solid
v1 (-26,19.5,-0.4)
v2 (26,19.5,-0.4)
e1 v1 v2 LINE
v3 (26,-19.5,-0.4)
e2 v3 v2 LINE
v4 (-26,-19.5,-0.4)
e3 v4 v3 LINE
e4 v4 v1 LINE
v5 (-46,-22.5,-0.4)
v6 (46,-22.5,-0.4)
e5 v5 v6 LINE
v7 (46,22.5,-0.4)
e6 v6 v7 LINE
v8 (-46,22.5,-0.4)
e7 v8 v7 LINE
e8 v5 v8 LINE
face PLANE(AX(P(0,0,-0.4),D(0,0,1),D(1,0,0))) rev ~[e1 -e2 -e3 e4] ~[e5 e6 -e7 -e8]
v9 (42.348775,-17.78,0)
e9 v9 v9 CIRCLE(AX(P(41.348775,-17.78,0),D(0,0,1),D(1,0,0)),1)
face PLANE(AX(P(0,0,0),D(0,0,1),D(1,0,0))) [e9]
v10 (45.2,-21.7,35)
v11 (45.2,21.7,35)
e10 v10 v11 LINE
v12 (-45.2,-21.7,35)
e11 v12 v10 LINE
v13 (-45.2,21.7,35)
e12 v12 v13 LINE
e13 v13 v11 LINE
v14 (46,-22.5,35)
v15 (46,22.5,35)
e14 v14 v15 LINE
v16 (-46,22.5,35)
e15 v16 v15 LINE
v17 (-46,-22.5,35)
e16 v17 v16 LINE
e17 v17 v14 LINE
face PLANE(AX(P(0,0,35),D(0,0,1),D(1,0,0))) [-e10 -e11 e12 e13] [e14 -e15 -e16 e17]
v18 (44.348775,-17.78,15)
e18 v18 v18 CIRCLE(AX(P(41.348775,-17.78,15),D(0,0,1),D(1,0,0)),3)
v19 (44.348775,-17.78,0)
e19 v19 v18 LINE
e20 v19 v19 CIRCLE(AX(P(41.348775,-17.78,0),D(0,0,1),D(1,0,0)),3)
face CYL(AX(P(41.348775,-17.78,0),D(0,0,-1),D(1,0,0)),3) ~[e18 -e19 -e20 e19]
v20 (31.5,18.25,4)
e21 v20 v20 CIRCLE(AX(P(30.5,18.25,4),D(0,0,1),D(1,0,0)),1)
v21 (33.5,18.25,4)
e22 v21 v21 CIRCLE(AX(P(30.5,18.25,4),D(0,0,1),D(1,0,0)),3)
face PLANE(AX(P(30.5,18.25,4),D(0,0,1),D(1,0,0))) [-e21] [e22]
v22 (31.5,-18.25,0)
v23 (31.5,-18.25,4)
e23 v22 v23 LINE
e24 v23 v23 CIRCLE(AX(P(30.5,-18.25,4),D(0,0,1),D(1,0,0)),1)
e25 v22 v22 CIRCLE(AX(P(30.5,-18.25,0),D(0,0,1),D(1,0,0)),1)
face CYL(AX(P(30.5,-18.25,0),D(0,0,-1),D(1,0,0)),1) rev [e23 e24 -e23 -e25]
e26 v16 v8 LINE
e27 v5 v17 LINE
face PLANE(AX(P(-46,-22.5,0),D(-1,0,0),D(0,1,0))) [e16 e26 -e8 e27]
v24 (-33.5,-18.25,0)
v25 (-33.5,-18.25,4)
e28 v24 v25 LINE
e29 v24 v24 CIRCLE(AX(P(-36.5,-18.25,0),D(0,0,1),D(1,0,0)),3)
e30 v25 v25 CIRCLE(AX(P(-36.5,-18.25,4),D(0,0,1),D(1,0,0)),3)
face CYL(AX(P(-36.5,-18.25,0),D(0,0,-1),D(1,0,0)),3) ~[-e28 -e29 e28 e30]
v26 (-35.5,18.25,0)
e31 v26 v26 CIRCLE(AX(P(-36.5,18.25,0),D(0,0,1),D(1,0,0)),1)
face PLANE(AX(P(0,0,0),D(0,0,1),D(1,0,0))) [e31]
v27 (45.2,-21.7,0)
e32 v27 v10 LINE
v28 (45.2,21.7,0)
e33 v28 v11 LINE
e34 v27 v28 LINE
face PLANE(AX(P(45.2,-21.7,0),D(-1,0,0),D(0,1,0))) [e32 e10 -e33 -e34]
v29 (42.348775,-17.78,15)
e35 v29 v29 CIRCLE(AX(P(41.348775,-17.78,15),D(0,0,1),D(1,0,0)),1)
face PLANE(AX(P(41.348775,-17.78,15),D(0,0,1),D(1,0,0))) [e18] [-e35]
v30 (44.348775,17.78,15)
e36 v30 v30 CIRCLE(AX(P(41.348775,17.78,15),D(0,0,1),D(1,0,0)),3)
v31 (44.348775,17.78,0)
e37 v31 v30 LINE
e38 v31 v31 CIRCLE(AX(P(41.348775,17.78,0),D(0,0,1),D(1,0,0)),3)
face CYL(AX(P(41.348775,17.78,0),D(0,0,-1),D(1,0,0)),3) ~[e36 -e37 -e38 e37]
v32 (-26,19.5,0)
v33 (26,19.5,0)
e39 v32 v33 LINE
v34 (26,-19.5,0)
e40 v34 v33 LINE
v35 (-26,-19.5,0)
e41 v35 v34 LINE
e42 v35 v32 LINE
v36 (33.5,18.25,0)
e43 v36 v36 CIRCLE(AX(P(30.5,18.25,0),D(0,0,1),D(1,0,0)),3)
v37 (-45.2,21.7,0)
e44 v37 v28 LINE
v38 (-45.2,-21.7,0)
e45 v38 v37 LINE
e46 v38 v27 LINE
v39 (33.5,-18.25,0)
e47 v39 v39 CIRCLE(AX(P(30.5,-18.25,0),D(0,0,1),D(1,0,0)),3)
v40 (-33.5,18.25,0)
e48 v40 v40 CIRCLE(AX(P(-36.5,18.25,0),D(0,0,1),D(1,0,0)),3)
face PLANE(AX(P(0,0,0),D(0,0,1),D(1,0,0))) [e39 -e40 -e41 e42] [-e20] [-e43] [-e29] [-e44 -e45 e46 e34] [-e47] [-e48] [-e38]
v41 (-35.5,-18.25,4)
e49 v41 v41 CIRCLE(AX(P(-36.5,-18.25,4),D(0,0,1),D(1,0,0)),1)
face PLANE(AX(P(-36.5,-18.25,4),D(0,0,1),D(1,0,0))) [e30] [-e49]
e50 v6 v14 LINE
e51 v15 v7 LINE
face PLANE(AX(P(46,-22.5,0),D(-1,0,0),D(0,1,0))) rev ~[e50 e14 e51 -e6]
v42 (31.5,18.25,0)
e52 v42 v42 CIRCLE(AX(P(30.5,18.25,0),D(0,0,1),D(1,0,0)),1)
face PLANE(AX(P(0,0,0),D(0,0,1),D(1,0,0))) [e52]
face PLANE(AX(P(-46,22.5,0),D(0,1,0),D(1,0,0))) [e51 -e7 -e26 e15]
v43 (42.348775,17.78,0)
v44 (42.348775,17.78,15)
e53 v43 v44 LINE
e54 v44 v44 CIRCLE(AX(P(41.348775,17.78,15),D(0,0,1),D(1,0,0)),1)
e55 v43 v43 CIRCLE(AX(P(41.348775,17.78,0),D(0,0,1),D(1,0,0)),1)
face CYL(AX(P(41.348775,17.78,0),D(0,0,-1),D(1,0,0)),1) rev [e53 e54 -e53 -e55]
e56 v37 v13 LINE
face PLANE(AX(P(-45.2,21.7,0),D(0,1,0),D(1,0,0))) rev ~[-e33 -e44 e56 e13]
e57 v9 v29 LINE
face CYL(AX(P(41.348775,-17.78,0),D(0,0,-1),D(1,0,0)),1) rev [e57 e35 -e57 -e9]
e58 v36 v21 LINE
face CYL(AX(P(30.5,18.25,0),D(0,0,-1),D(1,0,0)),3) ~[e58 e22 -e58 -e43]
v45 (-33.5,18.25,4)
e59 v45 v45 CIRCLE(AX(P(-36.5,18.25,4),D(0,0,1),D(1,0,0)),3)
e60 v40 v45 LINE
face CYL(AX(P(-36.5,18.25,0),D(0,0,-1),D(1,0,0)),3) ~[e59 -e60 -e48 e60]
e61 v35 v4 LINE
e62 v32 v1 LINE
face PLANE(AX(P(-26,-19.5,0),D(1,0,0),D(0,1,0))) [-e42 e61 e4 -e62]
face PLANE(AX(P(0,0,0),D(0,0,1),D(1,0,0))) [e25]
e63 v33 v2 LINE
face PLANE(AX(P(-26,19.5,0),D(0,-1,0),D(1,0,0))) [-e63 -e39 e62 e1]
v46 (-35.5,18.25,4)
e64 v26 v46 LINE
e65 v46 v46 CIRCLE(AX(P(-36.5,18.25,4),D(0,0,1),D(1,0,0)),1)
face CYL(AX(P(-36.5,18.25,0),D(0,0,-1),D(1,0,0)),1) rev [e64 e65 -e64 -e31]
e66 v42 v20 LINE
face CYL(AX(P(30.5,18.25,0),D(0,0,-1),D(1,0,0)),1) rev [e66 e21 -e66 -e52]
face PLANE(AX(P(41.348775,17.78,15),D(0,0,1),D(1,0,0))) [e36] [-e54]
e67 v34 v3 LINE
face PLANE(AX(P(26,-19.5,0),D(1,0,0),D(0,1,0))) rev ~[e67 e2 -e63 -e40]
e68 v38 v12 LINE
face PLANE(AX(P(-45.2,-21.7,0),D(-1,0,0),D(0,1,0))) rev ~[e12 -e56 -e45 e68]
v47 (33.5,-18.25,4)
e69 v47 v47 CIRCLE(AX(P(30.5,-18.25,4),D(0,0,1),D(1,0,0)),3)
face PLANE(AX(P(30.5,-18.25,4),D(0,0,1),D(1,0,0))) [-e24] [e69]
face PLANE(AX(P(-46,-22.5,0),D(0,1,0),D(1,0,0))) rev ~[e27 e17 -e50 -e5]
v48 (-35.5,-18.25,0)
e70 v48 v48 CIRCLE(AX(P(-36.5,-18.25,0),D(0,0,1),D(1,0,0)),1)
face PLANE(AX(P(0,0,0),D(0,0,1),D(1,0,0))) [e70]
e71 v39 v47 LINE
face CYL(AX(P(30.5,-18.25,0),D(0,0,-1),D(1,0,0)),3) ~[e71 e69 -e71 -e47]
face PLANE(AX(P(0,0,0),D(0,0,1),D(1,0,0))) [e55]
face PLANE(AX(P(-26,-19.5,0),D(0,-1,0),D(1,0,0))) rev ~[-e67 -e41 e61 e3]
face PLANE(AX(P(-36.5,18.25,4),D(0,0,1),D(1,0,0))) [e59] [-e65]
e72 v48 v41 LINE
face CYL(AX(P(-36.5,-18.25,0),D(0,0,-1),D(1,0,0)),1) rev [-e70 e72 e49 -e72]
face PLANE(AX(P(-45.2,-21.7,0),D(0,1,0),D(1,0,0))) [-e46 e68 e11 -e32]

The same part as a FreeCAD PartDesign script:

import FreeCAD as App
import Part
import Sketcher

doc = App.newDocument("Part")
body = doc.addObject("PartDesign::Body", "Body")

# Sketch on XY plane
sketch1 = body.newObject("Sketcher::SketchObject", "Sketch")
sketch1.AttachmentSupport = (doc.getObject("XY_Plane"), [""])
sketch1.MapMode = "FlatFace"
sketch1.addGeometry(Part.LineSegment(App.Vector(-46, 22, 0), App.Vector(-46, -22, 0)), False)
sketch1.addGeometry(Part.LineSegment(App.Vector(-46, -22, 0), App.Vector(46, -22, 0)), False)
sketch1.addGeometry(Part.LineSegment(App.Vector(46, -22, 0), App.Vector(46, 22, 0)), False)
sketch1.addGeometry(Part.LineSegment(App.Vector(46, 22, 0), App.Vector(-46, 22, 0)), False)
sketch1.addGeometry(Part.LineSegment(App.Vector(26, -20, 0), App.Vector(-26, -20, 0)), False)
sketch1.addGeometry(Part.LineSegment(App.Vector(-26, -20, 0), App.Vector(-26, 20, 0)), False)
sketch1.addGeometry(Part.LineSegment(App.Vector(-26, 20, 0), App.Vector(26, 20, 0)), False)
sketch1.addGeometry(Part.LineSegment(App.Vector(26, 20, 0), App.Vector(26, -20, 0)), False)
sketch1.addConstraint(Sketcher.Constraint("Coincident", 0, 2, 1, 1))
sketch1.addConstraint(Sketcher.Constraint("Coincident", 1, 2, 2, 1))
sketch1.addConstraint(Sketcher.Constraint("Coincident", 2, 2, 3, 1))
sketch1.addConstraint(Sketcher.Constraint("Coincident", 3, 2, 0, 1))
sketch1.addConstraint(Sketcher.Constraint("Coincident", 4, 2, 5, 1))
sketch1.addConstraint(Sketcher.Constraint("Coincident", 5, 2, 6, 1))
sketch1.addConstraint(Sketcher.Constraint("Coincident", 6, 2, 7, 1))
sketch1.addConstraint(Sketcher.Constraint("Coincident", 7, 2, 4, 1))
sketch1.addConstraint(Sketcher.Constraint("Vertical", 0))
sketch1.addConstraint(Sketcher.Constraint("Horizontal", 1))
sketch1.addConstraint(Sketcher.Constraint("Vertical", 2))
sketch1.addConstraint(Sketcher.Constraint("Horizontal", 3))
sketch1.addConstraint(Sketcher.Constraint("Horizontal", 4))
sketch1.addConstraint(Sketcher.Constraint("Vertical", 5))
sketch1.addConstraint(Sketcher.Constraint("Horizontal", 6))
sketch1.addConstraint(Sketcher.Constraint("Vertical", 7))
sketch1.addConstraint(Sketcher.Constraint("Symmetric", 0, 2, 2, 2, -1, 1))
sketch1.addConstraint(Sketcher.Constraint("Symmetric", 4, 2, 6, 2, -1, 1))
sketch1.addConstraint(Sketcher.Constraint("DistanceX", 1, 1, 1, 2, 92.0))
sketch1.addConstraint(Sketcher.Constraint("DistanceX", 4, 2, 4, 1, 52.0))
sketch1.addConstraint(Sketcher.Constraint("DistanceY", 0, 2, 0, 1, 45.0))
sketch1.addConstraint(Sketcher.Constraint("DistanceY", 5, 1, 5, 2, 39.0))
pad1 = body.newObject("PartDesign::Pad", "Pad")
pad1.Profile = sketch1
pad1.Length = 0.4
pad1.Reversed = True

# Sketch on XY plane
sketch2 = body.newObject("Sketcher::SketchObject", "Sketch001")
sketch2.AttachmentSupport = (doc.getObject("XY_Plane"), [""])
sketch2.MapMode = "FlatFace"
sketch2.addGeometry(Part.LineSegment(App.Vector(-46, 22, 0), App.Vector(-46, -22, 0)), False)
sketch2.addGeometry(Part.LineSegment(App.Vector(-46, -22, 0), App.Vector(46, -22, 0)), False)
sketch2.addGeometry(Part.LineSegment(App.Vector(46, -22, 0), App.Vector(46, 22, 0)), False)
sketch2.addGeometry(Part.LineSegment(App.Vector(46, 22, 0), App.Vector(-46, 22, 0)), False)
sketch2.addGeometry(Part.LineSegment(App.Vector(45, -22, 0), App.Vector(-45, -22, 0)), False)
sketch2.addGeometry(Part.LineSegment(App.Vector(-45, -22, 0), App.Vector(-45, 22, 0)), False)
sketch2.addGeometry(Part.LineSegment(App.Vector(-45, 22, 0), App.Vector(45, 22, 0)), False)
sketch2.addGeometry(Part.LineSegment(App.Vector(45, 22, 0), App.Vector(45, -22, 0)), False)
sketch2.addConstraint(Sketcher.Constraint("Coincident", 0, 2, 1, 1))
sketch2.addConstraint(Sketcher.Constraint("Coincident", 1, 2, 2, 1))
sketch2.addConstraint(Sketcher.Constraint("Coincident", 2, 2, 3, 1))
sketch2.addConstraint(Sketcher.Constraint("Coincident", 3, 2, 0, 1))
sketch2.addConstraint(Sketcher.Constraint("Coincident", 4, 2, 5, 1))
sketch2.addConstraint(Sketcher.Constraint("Coincident", 5, 2, 6, 1))
sketch2.addConstraint(Sketcher.Constraint("Coincident", 6, 2, 7, 1))
sketch2.addConstraint(Sketcher.Constraint("Coincident", 7, 2, 4, 1))
sketch2.addConstraint(Sketcher.Constraint("Vertical", 0))
sketch2.addConstraint(Sketcher.Constraint("Horizontal", 1))
sketch2.addConstraint(Sketcher.Constraint("Vertical", 2))
sketch2.addConstraint(Sketcher.Constraint("Horizontal", 3))
sketch2.addConstraint(Sketcher.Constraint("Horizontal", 4))
sketch2.addConstraint(Sketcher.Constraint("Vertical", 5))
sketch2.addConstraint(Sketcher.Constraint("Horizontal", 6))
sketch2.addConstraint(Sketcher.Constraint("Vertical", 7))
sketch2.addConstraint(Sketcher.Constraint("Symmetric", 0, 2, 2, 2, -1, 1))
sketch2.addConstraint(Sketcher.Constraint("Symmetric", 4, 2, 6, 2, -1, 1))
sketch2.addConstraint(Sketcher.Constraint("DistanceX", 1, 1, 1, 2, 92.0))
sketch2.addConstraint(Sketcher.Constraint("DistanceY", 0, 2, 0, 1, 45.0))
sketch2.addConstraint(Sketcher.Constraint("DistanceX", 4, 2, 4, 1, 90.4))
sketch2.addConstraint(Sketcher.Constraint("DistanceY", 5, 1, 5, 2, 43.4))
pad2 = body.newObject("PartDesign::Pad", "Pad001")
pad2.Profile = sketch2
pad2.Length = 35

# Sketch on XY plane
sketch3 = body.newObject("Sketcher::SketchObject", "Sketch002")
sketch3.AttachmentSupport = (doc.getObject("XY_Plane"), [""])
sketch3.MapMode = "FlatFace"
sketch3.addGeometry(Part.Circle(App.Vector(30.5, 18.2, 0), App.Vector(0, 0, 1), 3), False)
sketch3.addGeometry(Part.Circle(App.Vector(30.5, 18.2, 0), App.Vector(0, 0, 1), 1), False)
sketch3.addGeometry(Part.Circle(App.Vector(30.5, -18.2, 0), App.Vector(0, 0, 1), 3), False)
sketch3.addGeometry(Part.Circle(App.Vector(30.5, -18.2, 0), App.Vector(0, 0, 1), 1), False)
sketch3.addGeometry(Part.Circle(App.Vector(-36.5, 18.2, 0), App.Vector(0, 0, 1), 3), False)
sketch3.addGeometry(Part.Circle(App.Vector(-36.5, 18.2, 0), App.Vector(0, 0, 1), 1), False)
sketch3.addGeometry(Part.Circle(App.Vector(-36.5, -18.2, 0), App.Vector(0, 0, 1), 3), False)
sketch3.addGeometry(Part.Circle(App.Vector(-36.5, -18.2, 0), App.Vector(0, 0, 1), 1), False)
sketch3.addConstraint(Sketcher.Constraint("Coincident", 1, 3, 0, 3))
sketch3.addConstraint(Sketcher.Constraint("Coincident", 3, 3, 2, 3))
sketch3.addConstraint(Sketcher.Constraint("Coincident", 5, 3, 4, 3))
sketch3.addConstraint(Sketcher.Constraint("Coincident", 7, 3, 6, 3))
sketch3.addConstraint(Sketcher.Constraint("Equal", 0, 2))
sketch3.addConstraint(Sketcher.Constraint("Equal", 1, 3))
sketch3.addConstraint(Sketcher.Constraint("Equal", 2, 4))
sketch3.addConstraint(Sketcher.Constraint("Equal", 3, 5))
sketch3.addConstraint(Sketcher.Constraint("Equal", 4, 6))
sketch3.addConstraint(Sketcher.Constraint("Equal", 5, 7))
sketch3.addConstraint(Sketcher.Constraint("Symmetric", 0, 3, 2, 3, -1))
sketch3.addConstraint(Sketcher.Constraint("Symmetric", 4, 3, 6, 3, -1))
sketch3.addConstraint(Sketcher.Constraint("Horizontal", 1, 3, 4, 3))
sketch3.addConstraint(Sketcher.Constraint("Diameter", 0, 6.0))
sketch3.addConstraint(Sketcher.Constraint("Diameter", 1, 2.0))
sketch3.addConstraint(Sketcher.Constraint("DistanceX", 4, 3, 0, 3, 67.0))
sketch3.addConstraint(Sketcher.Constraint("DistanceX", -1, 1, 0, 3, 30.5))
sketch3.addConstraint(Sketcher.Constraint("DistanceY", 2, 3, 0, 3, 36.5))
pad3 = body.newObject("PartDesign::Pad", "Pad002")
pad3.Profile = sketch3
pad3.Length = 4

# Sketch on XY plane
sketch4 = body.newObject("Sketcher::SketchObject", "Sketch003")
sketch4.AttachmentSupport = (doc.getObject("XY_Plane"), [""])
sketch4.MapMode = "FlatFace"
sketch4.addGeometry(Part.Circle(App.Vector(41.3, 17.8, 0), App.Vector(0, 0, 1), 3), False)
sketch4.addGeometry(Part.Circle(App.Vector(41.3, 17.8, 0), App.Vector(0, 0, 1), 1), False)
sketch4.addGeometry(Part.Circle(App.Vector(41.3, -17.8, 0), App.Vector(0, 0, 1), 3), False)
sketch4.addGeometry(Part.Circle(App.Vector(41.3, -17.8, 0), App.Vector(0, 0, 1), 1), False)
sketch4.addConstraint(Sketcher.Constraint("Coincident", 1, 3, 0, 3))
sketch4.addConstraint(Sketcher.Constraint("Coincident", 3, 3, 2, 3))
sketch4.addConstraint(Sketcher.Constraint("Equal", 0, 2))
sketch4.addConstraint(Sketcher.Constraint("Equal", 1, 3))
sketch4.addConstraint(Sketcher.Constraint("Symmetric", 0, 3, 2, 3, -1))
sketch4.addConstraint(Sketcher.Constraint("Diameter", 0, 6.0))
sketch4.addConstraint(Sketcher.Constraint("Diameter", 1, 2.0))
sketch4.addConstraint(Sketcher.Constraint("DistanceY", -1, 1, 0, 3, 17.78))
sketch4.addConstraint(Sketcher.Constraint("DistanceX", -1, 1, 0, 3, 41.348775))
pad4 = body.newObject("PartDesign::Pad", "Pad003")
pad4.Profile = sketch4
pad4.Length = 15

doc.recompute()
